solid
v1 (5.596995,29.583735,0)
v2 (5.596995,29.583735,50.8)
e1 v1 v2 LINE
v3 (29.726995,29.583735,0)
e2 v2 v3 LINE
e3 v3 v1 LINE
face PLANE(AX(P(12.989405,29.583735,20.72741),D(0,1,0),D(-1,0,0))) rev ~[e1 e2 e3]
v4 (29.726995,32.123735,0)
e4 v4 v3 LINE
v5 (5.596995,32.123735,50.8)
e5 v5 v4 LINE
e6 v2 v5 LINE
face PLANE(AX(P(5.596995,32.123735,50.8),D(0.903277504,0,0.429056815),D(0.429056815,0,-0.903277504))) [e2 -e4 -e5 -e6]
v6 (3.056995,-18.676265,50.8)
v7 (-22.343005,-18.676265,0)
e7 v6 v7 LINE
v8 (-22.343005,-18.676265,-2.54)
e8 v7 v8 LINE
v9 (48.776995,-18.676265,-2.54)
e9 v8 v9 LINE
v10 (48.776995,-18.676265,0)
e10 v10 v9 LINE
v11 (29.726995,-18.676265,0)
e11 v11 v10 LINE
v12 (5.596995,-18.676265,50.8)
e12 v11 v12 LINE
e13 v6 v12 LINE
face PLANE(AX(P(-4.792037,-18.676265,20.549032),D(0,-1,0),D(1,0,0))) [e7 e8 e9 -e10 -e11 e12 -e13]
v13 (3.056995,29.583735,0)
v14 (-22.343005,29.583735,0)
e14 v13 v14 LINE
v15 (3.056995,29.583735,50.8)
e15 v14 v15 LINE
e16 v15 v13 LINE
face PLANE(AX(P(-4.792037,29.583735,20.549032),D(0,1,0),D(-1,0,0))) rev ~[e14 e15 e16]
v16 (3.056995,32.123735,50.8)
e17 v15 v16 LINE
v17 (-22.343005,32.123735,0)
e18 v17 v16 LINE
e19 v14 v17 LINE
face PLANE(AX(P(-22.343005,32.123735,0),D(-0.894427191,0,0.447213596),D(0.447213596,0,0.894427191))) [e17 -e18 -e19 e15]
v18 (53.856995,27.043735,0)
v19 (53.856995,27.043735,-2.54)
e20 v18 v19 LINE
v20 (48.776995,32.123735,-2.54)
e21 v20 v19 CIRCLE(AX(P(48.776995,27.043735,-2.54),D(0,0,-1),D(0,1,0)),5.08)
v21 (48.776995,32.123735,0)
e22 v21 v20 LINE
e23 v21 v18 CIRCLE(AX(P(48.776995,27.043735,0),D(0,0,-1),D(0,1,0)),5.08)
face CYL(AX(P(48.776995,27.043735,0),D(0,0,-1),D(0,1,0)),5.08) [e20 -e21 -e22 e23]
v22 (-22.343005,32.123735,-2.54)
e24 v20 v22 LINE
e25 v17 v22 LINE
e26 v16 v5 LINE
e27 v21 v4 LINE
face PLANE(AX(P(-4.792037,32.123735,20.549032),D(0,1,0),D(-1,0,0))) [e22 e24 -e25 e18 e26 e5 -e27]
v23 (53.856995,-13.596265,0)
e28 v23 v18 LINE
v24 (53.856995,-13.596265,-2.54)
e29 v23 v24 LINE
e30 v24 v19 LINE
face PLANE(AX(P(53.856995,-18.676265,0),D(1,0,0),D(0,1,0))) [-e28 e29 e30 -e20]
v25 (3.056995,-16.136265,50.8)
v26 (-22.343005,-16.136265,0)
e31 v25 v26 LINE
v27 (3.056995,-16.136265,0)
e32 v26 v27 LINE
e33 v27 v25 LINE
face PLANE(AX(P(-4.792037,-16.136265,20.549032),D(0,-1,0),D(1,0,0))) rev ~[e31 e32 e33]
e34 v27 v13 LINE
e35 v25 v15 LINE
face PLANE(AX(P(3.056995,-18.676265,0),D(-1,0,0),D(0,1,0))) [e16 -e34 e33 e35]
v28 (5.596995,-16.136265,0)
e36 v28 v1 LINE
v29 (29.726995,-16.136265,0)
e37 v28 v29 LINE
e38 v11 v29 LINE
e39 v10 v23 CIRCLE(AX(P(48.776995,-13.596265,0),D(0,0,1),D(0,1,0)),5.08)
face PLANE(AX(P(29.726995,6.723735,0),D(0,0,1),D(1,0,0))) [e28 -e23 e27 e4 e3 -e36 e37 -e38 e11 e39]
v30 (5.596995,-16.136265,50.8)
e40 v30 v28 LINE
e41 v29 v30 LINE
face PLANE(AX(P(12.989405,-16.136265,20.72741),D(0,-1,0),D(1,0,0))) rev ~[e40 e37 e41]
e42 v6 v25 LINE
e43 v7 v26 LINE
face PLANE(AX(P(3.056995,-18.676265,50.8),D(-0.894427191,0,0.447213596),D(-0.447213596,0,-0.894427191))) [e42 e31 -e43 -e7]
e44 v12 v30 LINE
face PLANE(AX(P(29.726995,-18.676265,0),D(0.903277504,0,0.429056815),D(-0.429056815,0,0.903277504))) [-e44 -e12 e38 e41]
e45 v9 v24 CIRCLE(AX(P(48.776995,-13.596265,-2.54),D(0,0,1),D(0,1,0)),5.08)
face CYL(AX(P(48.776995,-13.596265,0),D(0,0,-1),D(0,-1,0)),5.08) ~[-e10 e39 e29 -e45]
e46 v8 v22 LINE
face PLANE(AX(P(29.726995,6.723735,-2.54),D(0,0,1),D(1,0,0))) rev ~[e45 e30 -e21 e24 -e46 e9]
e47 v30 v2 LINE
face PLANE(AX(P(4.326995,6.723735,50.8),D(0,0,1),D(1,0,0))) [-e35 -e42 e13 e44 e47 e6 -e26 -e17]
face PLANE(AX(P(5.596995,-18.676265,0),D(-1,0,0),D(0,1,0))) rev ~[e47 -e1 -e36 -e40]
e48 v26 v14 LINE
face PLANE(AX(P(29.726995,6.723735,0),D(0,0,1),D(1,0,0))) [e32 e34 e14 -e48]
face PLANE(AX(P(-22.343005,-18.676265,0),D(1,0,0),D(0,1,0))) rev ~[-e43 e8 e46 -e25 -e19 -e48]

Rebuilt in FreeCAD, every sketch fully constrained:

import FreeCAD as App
import Part
import Sketcher
Q = App.Units.Quantity


def edges_at(feature, points):
    """Names of the edges that pass closest to the given points."""
    edges = feature.Shape.Edges
    near = lambda p: min(range(len(edges)), key=lambda i: edges[i].distToShape(Part.Vertex(*p))[0])
    return sorted({f"Edge{near(p) + 1}" for p in points})


def add_polygon(sketch, points):
    """Adds a closed chain of lines whose ends are joined by coincident constraints."""
    first, n = sketch.GeometryCount, len(points)
    for a, b in zip(points, points[1:] + points[:1]):
        sketch.addGeometry(Part.LineSegment(App.Vector(*a, 0), App.Vector(*b, 0)), False)
    for i in range(n):
        sketch.addConstraint(Sketcher.Constraint("Coincident", first + i, 2, first + (i + 1) % n, 1))

doc = App.newDocument("Part")
body = doc.addObject("PartDesign::Body", "Body")

# Sketch on XY plane
sketch1 = body.newObject("Sketcher::SketchObject", "Sketch")
sketch1.AttachmentSupport = (doc.getObject("XY_Plane"), [""])
sketch1.MapMode = "FlatFace"
add_polygon(sketch1, [(54, -19), (54, 32), (-22, 32), (-22, -19)])  # lines 0-3
sketch1.addConstraint(Sketcher.Constraint("Vertical", 0))
sketch1.addConstraint(Sketcher.Constraint("Horizontal", 1))
sketch1.addConstraint(Sketcher.Constraint("Vertical", 2))
sketch1.addConstraint(Sketcher.Constraint("Horizontal", 3))
sketch1.addConstraint(Sketcher.Constraint("DistanceX", 1, 2, 1, 1, Q("3 in")))
sketch1.addConstraint(Sketcher.Constraint("DistanceY", 0, 1, 0, 2, Q("2 in")))
sketch1.addConstraint(Sketcher.Constraint("DistanceX", -1, 1, 0, 2, Q("53.856995 mm")))
sketch1.addConstraint(Sketcher.Constraint("DistanceY", -1, 1, 0, 2, Q("32.123735 mm")))
pad1 = body.newObject("PartDesign::Pad", "Pad")
pad1.Profile = sketch1
pad1.Length = Q("0.1 in")
pad1.Reversed = True

# Sketch on XY plane
sketch2 = body.newObject("Sketcher::SketchObject", "Sketch001")
sketch2.AttachmentSupport = (doc.getObject("XY_Plane"), [""])
sketch2.MapMode = "FlatFace"
add_polygon(sketch2, [(3.1, 32.1), (3.1, -18.7), (5.6, -18.7), (5.6, 32.1)])  # lines 0-3
sketch2.addConstraint(Sketcher.Constraint("Vertical", 0))
sketch2.addConstraint(Sketcher.Constraint("Horizontal", 1))
sketch2.addConstraint(Sketcher.Constraint("Vertical", 2))
sketch2.addConstraint(Sketcher.Constraint("Horizontal", 3))
sketch2.addConstraint(Sketcher.Constraint("DistanceY", 0, 2, 0, 1, Q("2 in")))
sketch2.addConstraint(Sketcher.Constraint("DistanceX", 1, 1, 1, 2, Q("0.1 in")))
sketch2.addConstraint(Sketcher.Constraint("DistanceX", -1, 1, 0, 2, Q("3.056995 mm")))
sketch2.addConstraint(Sketcher.Constraint("DistanceY", 0, 2, -1, 1, Q("18.676265 mm")))
pad2 = body.newObject("PartDesign::Pad", "Pad001")
pad2.Profile = sketch2
pad2.Length = Q("2 in")

# Sketch on XZ plane
sketch3 = body.newObject("Sketcher::SketchObject", "Sketch002")
sketch3.AttachmentSupport = (doc.getObject("XZ_Plane"), [""])
sketch3.MapMode = "FlatFace"
sketch3.AttachmentOffset = App.Placement(App.Vector(0, 0, 18.676265), App.Rotation())
add_polygon(sketch3, [(3, 51), (-22, 0), (3, 0)])  # lines 0-2
add_polygon(sketch3, [(30, 0), (6, 51), (6, 0)])  # lines 3-5
sketch3.addConstraint(Sketcher.Constraint("Horizontal", 1))
sketch3.addConstraint(Sketcher.Constraint("Vertical", 2))
sketch3.addConstraint(Sketcher.Constraint("Vertical", 4))
sketch3.addConstraint(Sketcher.Constraint("Horizontal", 5))
sketch3.addConstraint(Sketcher.Constraint("PointOnObject", 0, 2, -1))
sketch3.addConstraint(Sketcher.Constraint("PointOnObject", 4, 2, -1))
sketch3.addConstraint(Sketcher.Constraint("Horizontal", 2, 2, 3, 2))
sketch3.addConstraint(Sketcher.Constraint("DistanceX", 1, 1, 1, 2, Q("1 in")))
sketch3.addConstraint(Sketcher.Constraint("DistanceY", 2, 1, 2, 2, Q("2 in")))
sketch3.addConstraint(Sketcher.Constraint("DistanceX", 5, 1, 5, 2, Q("0.95 in")))
sketch3.addConstraint(Sketcher.Constraint("DistanceX", 2, 2, 3, 2, Q("0.1 in")))
sketch3.addConstraint(Sketcher.Constraint("DistanceX", 0, 2, -1, 1, Q("22.343005 mm")))
pad3 = body.newObject("PartDesign::Pad", "Pad002")
pad3.Profile = sketch3
pad3.Length = Q("0.1 in")
pad3.Reversed = True

# Sketch on XZ plane
sketch4 = body.newObject("Sketcher::SketchObject", "Sketch003")
sketch4.AttachmentSupport = (doc.getObject("XZ_Plane"), [""])
sketch4.MapMode = "FlatFace"
sketch4.AttachmentOffset = App.Placement(App.Vector(0, 0, -32.123735), App.Rotation())
add_polygon(sketch4, [(-22, 0), (3, 51), (3, 0)])  # lines 0-2
add_polygon(sketch4, [(6, 0), (6, 51), (30, 0)])  # lines 3-5
sketch4.addConstraint(Sketcher.Constraint("Vertical", 1))
sketch4.addConstraint(Sketcher.Constraint("Horizontal", 2))
sketch4.addConstraint(Sketcher.Constraint("Vertical", 3))
sketch4.addConstraint(Sketcher.Constraint("Horizontal", 5))
sketch4.addConstraint(Sketcher.Constraint("PointOnObject", 1, 2, -1))
sketch4.addConstraint(Sketcher.Constraint("PointOnObject", 4, 2, -1))
sketch4.addConstraint(Sketcher.Constraint("Horizontal", 0, 2, 3, 2))
sketch4.addConstraint(Sketcher.Constraint("DistanceX", 2, 2, 2, 1, Q("1 in")))
sketch4.addConstraint(Sketcher.Constraint("DistanceY", 1, 2, 1, 1, Q("2 in")))
sketch4.addConstraint(Sketcher.Constraint("DistanceX", 5, 2, 5, 1, Q("0.95 in")))
sketch4.addConstraint(Sketcher.Constraint("DistanceX", 0, 2, 3, 2, Q("0.1 in")))
sketch4.addConstraint(Sketcher.Constraint("DistanceX", -1, 1, 0, 2, Q("3.056995 mm")))
pad4 = body.newObject("PartDesign::Pad", "Pad003")
pad4.Profile = sketch4
pad4.Length = Q("0.1 in")
doc.recompute()

fillet = body.newObject("PartDesign::Fillet", "Fillet")
fillet.Base = (pad4, edges_at(pad4, [(53.857, -18.676, -1.27), (53.857, 32.124, -1.27)]))
fillet.Radius = Q("0.2 in")

doc.recompute()
